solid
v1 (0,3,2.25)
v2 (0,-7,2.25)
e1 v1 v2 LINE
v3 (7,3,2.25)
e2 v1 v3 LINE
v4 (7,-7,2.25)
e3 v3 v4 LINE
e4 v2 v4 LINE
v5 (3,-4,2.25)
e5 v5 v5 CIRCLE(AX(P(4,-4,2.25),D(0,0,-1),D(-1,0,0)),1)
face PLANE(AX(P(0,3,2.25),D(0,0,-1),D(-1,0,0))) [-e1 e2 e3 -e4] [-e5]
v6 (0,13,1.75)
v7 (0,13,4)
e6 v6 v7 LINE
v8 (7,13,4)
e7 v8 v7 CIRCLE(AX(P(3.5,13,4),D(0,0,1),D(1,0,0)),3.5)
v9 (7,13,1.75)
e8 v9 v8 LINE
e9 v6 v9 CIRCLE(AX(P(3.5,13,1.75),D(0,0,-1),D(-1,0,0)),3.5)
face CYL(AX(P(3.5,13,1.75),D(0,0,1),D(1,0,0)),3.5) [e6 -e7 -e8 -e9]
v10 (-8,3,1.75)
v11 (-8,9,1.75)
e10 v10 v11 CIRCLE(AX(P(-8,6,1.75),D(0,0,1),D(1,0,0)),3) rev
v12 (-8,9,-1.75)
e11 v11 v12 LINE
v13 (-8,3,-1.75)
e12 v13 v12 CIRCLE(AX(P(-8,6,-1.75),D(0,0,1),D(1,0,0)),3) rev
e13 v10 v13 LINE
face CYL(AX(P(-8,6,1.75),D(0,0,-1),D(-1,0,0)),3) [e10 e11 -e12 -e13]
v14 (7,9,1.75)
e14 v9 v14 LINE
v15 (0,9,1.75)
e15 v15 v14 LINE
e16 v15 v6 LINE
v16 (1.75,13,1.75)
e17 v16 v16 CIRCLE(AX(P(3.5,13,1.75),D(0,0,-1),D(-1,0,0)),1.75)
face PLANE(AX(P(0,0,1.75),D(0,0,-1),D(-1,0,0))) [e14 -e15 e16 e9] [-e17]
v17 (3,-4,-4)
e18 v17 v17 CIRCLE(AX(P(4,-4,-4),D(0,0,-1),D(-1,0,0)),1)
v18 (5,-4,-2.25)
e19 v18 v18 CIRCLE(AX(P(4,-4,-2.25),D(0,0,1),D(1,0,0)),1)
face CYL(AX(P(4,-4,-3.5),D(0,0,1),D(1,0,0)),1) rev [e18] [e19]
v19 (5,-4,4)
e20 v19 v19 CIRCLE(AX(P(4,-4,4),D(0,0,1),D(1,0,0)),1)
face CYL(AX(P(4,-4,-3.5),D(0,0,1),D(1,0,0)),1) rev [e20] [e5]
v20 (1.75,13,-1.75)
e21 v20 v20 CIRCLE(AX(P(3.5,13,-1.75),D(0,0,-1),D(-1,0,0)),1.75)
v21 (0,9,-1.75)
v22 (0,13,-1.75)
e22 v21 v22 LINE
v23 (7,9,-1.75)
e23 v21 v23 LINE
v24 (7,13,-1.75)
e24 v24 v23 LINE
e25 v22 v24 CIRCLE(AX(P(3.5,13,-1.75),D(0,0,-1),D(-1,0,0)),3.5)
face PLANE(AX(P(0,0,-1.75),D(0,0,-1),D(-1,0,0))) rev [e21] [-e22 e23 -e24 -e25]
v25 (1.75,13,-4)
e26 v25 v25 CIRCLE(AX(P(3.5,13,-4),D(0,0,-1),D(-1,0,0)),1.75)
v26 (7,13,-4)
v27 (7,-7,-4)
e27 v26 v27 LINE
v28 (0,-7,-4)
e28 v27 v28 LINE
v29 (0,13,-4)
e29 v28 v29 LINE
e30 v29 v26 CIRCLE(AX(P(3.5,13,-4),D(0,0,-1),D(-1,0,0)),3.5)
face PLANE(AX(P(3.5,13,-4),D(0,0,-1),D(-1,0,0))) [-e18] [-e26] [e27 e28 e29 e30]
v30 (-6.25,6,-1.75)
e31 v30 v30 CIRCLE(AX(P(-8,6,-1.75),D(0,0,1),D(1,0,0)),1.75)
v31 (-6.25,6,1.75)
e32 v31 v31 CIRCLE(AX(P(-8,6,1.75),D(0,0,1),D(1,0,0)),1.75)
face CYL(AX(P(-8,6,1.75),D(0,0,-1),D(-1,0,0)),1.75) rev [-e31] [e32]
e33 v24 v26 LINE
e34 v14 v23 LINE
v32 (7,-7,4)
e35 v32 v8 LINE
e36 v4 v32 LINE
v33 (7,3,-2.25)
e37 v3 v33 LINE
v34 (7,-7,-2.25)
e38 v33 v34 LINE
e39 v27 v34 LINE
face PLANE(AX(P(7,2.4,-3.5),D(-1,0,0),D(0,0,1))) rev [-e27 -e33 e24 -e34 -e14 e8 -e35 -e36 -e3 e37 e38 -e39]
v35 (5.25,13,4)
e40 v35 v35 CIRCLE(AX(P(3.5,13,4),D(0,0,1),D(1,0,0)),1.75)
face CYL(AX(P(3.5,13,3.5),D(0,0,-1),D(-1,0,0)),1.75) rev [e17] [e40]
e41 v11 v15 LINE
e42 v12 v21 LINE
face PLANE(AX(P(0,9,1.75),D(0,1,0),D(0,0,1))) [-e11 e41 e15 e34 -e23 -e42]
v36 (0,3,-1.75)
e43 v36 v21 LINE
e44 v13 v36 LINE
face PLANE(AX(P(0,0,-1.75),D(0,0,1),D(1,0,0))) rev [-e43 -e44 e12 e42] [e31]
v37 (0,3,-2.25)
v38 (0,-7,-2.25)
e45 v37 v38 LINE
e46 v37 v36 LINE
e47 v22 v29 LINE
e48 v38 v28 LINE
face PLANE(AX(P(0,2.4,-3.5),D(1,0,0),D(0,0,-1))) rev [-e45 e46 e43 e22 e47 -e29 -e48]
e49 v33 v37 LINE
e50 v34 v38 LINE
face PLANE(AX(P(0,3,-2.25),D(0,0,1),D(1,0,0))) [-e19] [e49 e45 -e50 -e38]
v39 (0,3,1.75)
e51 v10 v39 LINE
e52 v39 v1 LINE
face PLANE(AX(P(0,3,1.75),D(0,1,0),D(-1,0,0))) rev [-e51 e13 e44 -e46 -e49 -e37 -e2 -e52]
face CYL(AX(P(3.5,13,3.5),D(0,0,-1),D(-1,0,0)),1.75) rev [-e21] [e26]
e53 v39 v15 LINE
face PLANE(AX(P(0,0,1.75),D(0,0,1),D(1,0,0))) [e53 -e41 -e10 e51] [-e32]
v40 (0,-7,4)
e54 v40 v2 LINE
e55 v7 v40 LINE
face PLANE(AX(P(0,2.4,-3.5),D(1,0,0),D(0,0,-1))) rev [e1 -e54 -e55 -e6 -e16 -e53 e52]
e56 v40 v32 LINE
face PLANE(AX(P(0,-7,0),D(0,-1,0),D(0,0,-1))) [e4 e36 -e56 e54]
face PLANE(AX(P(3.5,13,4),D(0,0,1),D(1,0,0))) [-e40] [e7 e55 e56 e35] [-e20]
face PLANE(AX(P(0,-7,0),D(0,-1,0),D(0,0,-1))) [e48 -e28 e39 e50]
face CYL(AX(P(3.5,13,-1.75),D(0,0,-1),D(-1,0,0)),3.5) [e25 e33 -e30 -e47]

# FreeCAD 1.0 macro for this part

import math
import FreeCAD as App
import Part
import Sketcher
from FreeCAD import Vector

doc = App.newDocument("Part")
body = doc.addObject("PartDesign::Body", "Body")

sketch1 = body.newObject("Sketcher::SketchObject", "Sketch")
sketch1.AttachmentSupport = (doc.getObject("XZ_Plane"), [""])
sketch1.MapMode = "FlatFace"
sketch1.addGeometry([
    Part.LineSegment(Vector(0, -3.5, 0), Vector(0, 3.5, 0)),
    Part.LineSegment(Vector(0, 3.5, 0), Vector(7, 3.5, 0)),
    Part.LineSegment(Vector(7, 3.5, 0), Vector(7, -3.5, 0)),
    Part.LineSegment(Vector(7, -3.5, 0), Vector(0, -3.5, 0)),
], False)
sketch1.addConstraint([
    Sketcher.Constraint("Coincident", 0, 2, 1, 1),
    Sketcher.Constraint("Coincident", 1, 2, 2, 1),
    Sketcher.Constraint("Coincident", 2, 2, 3, 1),
    Sketcher.Constraint("Coincident", 3, 2, 0, 1),
    Sketcher.Constraint("Vertical", 0),
    Sketcher.Constraint("Horizontal", 1),
    Sketcher.Constraint("Vertical", 2),
    Sketcher.Constraint("Horizontal", 3),
    Sketcher.Constraint("Symmetric", 0, 2, 3, 2, -1, 1),
    Sketcher.Constraint("Equal", 3, 0),
    Sketcher.Constraint("DistanceX", 1, 1, 1, 2, 7.0),
])
pad1 = body.newObject("PartDesign::Pad", "Pad")
pad1.Profile = sketch1
pad1.Length = 2.4
pad1.Reversed = True

sketch2 = body.newObject("Sketcher::SketchObject", "Sketch001")
sketch2.AttachmentSupport = (doc.getObject("XY_Plane"), [""])
sketch2.MapMode = "FlatFace"
sketch2.AttachmentOffset = App.Placement(Vector(0, 0, -3.5), App.Rotation())
sketch2.addGeometry([
    Part.LineSegment(Vector(0, 2.4, 0), Vector(0, 13, 0)),
    Part.ArcOfCircle(Part.Circle(Vector(3.5, 13, 0), Vector(0, 0, 1), 3.5), math.radians(0), math.radians(180)),
    Part.LineSegment(Vector(7, 13, 0), Vector(7, 2.4, 0)),
    Part.LineSegment(Vector(7, 2.4, 0), Vector(0, 2.4, 0)),
], False)
sketch2.addConstraint([
    Sketcher.Constraint("Tangent", 0, 2, 1, 2),
    Sketcher.Constraint("Tangent", 1, 1, 2, 1),
    Sketcher.Constraint("Coincident", 2, 2, 3, 1),
    Sketcher.Constraint("Coincident", 3, 2, 0, 1),
    Sketcher.Constraint("Vertical", 0),
    Sketcher.Constraint("Vertical", 2),
    Sketcher.Constraint("Horizontal", 3),
    Sketcher.Constraint("PointOnObject", 0, 2, -2),
    Sketcher.Constraint("Radius", 1, 3.5),
    Sketcher.Constraint("DistanceY", 0, 1, 0, 2, 10.6),
    Sketcher.Constraint("DistanceY", -1, 1, 1, 3, 13.0),
])
pad2 = body.newObject("PartDesign::Pad", "Pad001")
pad2.Profile = sketch2
pad2.Length = 1.75

sketch3 = body.newObject("Sketcher::SketchObject", "Sketch002")
sketch3.AttachmentSupport = (doc.getObject("XY_Plane"), [""])
sketch3.MapMode = "FlatFace"
sketch3.AttachmentOffset = App.Placement(Vector(0, 0, 1.75), App.Rotation())
sketch3.addGeometry([
    Part.LineSegment(Vector(0, 2.4, 0), Vector(0, 13, 0)),
    Part.ArcOfCircle(Part.Circle(Vector(3.5, 13, 0), Vector(0, 0, 1), 3.5), math.radians(0), math.radians(180)),
    Part.LineSegment(Vector(7, 13, 0), Vector(7, 2.4, 0)),
    Part.LineSegment(Vector(7, 2.4, 0), Vector(0, 2.4, 0)),
], False)
sketch3.addConstraint([
    Sketcher.Constraint("Tangent", 0, 2, 1, 2),
    Sketcher.Constraint("Tangent", 1, 1, 2, 1),
    Sketcher.Constraint("Coincident", 2, 2, 3, 1),
    Sketcher.Constraint("Coincident", 3, 2, 0, 1),
    Sketcher.Constraint("Vertical", 0),
    Sketcher.Constraint("Vertical", 2),
    Sketcher.Constraint("Horizontal", 3),
    Sketcher.Constraint("PointOnObject", 0, 2, -2),
    Sketcher.Constraint("Radius", 1, 3.5),
    Sketcher.Constraint("DistanceY", 0, 1, 0, 2, 10.6),
    Sketcher.Constraint("DistanceY", -1, 1, 1, 3, 13.0),
])
pad3 = body.newObject("PartDesign::Pad", "Pad002")
pad3.Profile = sketch3
pad3.Length = 1.75

sketch4 = body.newObject("Sketcher::SketchObject", "Sketch003")
sketch4.AttachmentSupport = (doc.getObject("XY_Plane"), [""])
sketch4.MapMode = "FlatFace"
sketch4.AttachmentOffset = App.Placement(Vector(0, 0, -3.5), App.Rotation())
sketch4.addGeometry(Part.Circle(Vector(3.5, 13, 0), Vector(0, 0, 1), 1.75), False)
sketch4.addConstraint([
    Sketcher.Constraint("Diameter", 0, 3.5),
    Sketcher.Constraint("DistanceY", -1, 1, 0, 3, 13.0),
    Sketcher.Constraint("DistanceX", -1, 1, 0, 3, 3.5),
])
pocket1 = body.newObject("PartDesign::Pocket", "Pocket")
pocket1.Profile = sketch4
pocket1.Type = "ThroughAll"
pocket1.Reversed = True

sketch5 = body.newObject("Sketcher::SketchObject", "Sketch004")
sketch5.AttachmentSupport = (doc.getObject("XZ_Plane"), [""])
sketch5.MapMode = "FlatFace"
sketch5.addGeometry([
    Part.LineSegment(Vector(0, 3.5, 0), Vector(0, -3.5, 0)),
    Part.LineSegment(Vector(0, -3.5, 0), Vector(7, -3.5, 0)),
    Part.LineSegment(Vector(7, -3.5, 0), Vector(7, 3.5, 0)),
    Part.LineSegment(Vector(7, 3.5, 0), Vector(0, 3.5, 0)),
], False)
sketch5.addConstraint([
    Sketcher.Constraint("Coincident", 0, 2, 1, 1),
    Sketcher.Constraint("Coincident", 1, 2, 2, 1),
    Sketcher.Constraint("Coincident", 2, 2, 3, 1),
    Sketcher.Constraint("Coincident", 3, 2, 0, 1),
    Sketcher.Constraint("Vertical", 0),
    Sketcher.Constraint("Horizontal", 1),
    Sketcher.Constraint("Vertical", 2),
    Sketcher.Constraint("Horizontal", 3),
    Sketcher.Constraint("Symmetric", 0, 2, 3, 2, -1, 1),
    Sketcher.Constraint("Equal", 3, 0),
    Sketcher.Constraint("DistanceX", 1, 1, 1, 2, 7.0),
])
pad4 = body.newObject("PartDesign::Pad", "Pad003")
pad4.Profile = sketch5
pad4.Length = 7

sketch6 = body.newObject("Sketcher::SketchObject", "Sketch005")
sketch6.AttachmentSupport = (doc.getObject("XY_Plane"), [""])
sketch6.MapMode = "FlatFace"
sketch6.addGeometry([
    Part.ArcOfCircle(Part.Circle(Vector(-8, 6, 0), Vector(0, 0, 1), 3), math.radians(90), math.radians(270)),
    Part.LineSegment(Vector(-8, 3, 0), Vector(7, 3, 0)),
    Part.LineSegment(Vector(7, 3, 0), Vector(7, 9, 0)),
    Part.LineSegment(Vector(7, 9, 0), Vector(-8, 9, 0)),
    Part.Circle(Vector(-8, 6, 0), Vector(0, 0, 1), 1.75),
], False)
sketch6.addConstraint([
    Sketcher.Constraint("Tangent", 0, 2, 1, 1),
    Sketcher.Constraint("Coincident", 1, 2, 2, 1),
    Sketcher.Constraint("Coincident", 2, 2, 3, 1),
    Sketcher.Constraint("Tangent", 3, 2, 0, 1),
    Sketcher.Constraint("Horizontal", 1),
    Sketcher.Constraint("Vertical", 2),
    Sketcher.Constraint("Horizontal", 3),
    Sketcher.Constraint("Coincident", 4, 3, 0, 3),
    Sketcher.Constraint("Radius", 0, 3.0),
    Sketcher.Constraint("Diameter", 4, 3.5),
    Sketcher.Constraint("DistanceX", 1, 1, 1, 2, 15.0),
    Sketcher.Constraint("DistanceX", 0, 3, -1, 1, 8.0),
    Sketcher.Constraint("DistanceY", -1, 1, 0, 3, 6.0),
])
pad5 = body.newObject("PartDesign::Pad", "Pad004")
pad5.Profile = sketch6
pad5.Length = 3.5
pad5.Midplane = True

sketch7 = body.newObject("Sketcher::SketchObject", "Sketch006")
sketch7.AttachmentSupport = (doc.getObject("XY_Plane"), [""])
sketch7.MapMode = "FlatFace"
sketch7.AttachmentOffset = App.Placement(Vector(0, 0, 3.5), App.Rotation())
sketch7.addGeometry(Part.Circle(Vector(4, -4, 0), Vector(0, 0, 1), 1), False)
sketch7.addConstraint([
    Sketcher.Constraint("Diameter", 0, 2.0),
    Sketcher.Constraint("DistanceX", -1, 1, 0, 3, 4.0),
    Sketcher.Constraint("DistanceY", 0, 3, -1, 1, 4.0),
])
pocket2 = body.newObject("PartDesign::Pocket", "Pocket001")
pocket2.Profile = sketch7
pocket2.Type = "ThroughAll"

sketch8 = body.newObject("Sketcher::SketchObject", "Sketch007")
sketch8.AttachmentSupport = (doc.getObject("XZ_Plane"), [""])
sketch8.MapMode = "FlatFace"
sketch8.AttachmentOffset = App.Placement(Vector(0, 0, 7), App.Rotation())
sketch8.addGeometry([
    Part.LineSegment(Vector(0, -2.25, 0), Vector(0, 2.25, 0)),
    Part.LineSegment(Vector(0, 2.25, 0), Vector(7, 2.25, 0)),
    Part.LineSegment(Vector(7, 2.25, 0), Vector(7, -2.25, 0)),
    Part.LineSegment(Vector(7, -2.25, 0), Vector(0, -2.25, 0)),
], False)
sketch8.addConstraint([
    Sketcher.Constraint("Coincident", 0, 2, 1, 1),
    Sketcher.Constraint("Coincident", 1, 2, 2, 1),
    Sketcher.Constraint("Coincident", 2, 2, 3, 1),
    Sketcher.Constraint("Coincident", 3, 2, 0, 1),
    Sketcher.Constraint("Vertical", 0),
    Sketcher.Constraint("Horizontal", 1),
    Sketcher.Constraint("Vertical", 2),
    Sketcher.Constraint("Horizontal", 3),
    Sketcher.Constraint("Symmetric", 0, 2, 3, 2, -1, 1),
    Sketcher.Constraint("DistanceX", 1, 1, 1, 2, 7.0),
    Sketcher.Constraint("DistanceY", 0, 1, 0, 2, 4.5),
])
pocket3 = body.newObject("PartDesign::Pocket", "Pocket002")
pocket3.Profile = sketch8
pocket3.Length = 10

sketch9 = body.newObject("Sketcher::SketchObject", "Sketch008")
sketch9.AttachmentSupport = (doc.getObject("XY_Plane"), [""])
sketch9.MapMode = "FlatFace"
sketch9.AttachmentOffset = App.Placement(Vector(0, 0, 3.5), App.Rotation())
sketch9.addGeometry([
    Part.LineSegment(Vector(0, 13, 0), Vector(0, -7, 0)),
    Part.LineSegment(Vector(0, -7, 0), Vector(7, -7, 0)),
    Part.LineSegment(Vector(7, -7, 0), Vector(7, 13, 0)),
    Part.ArcOfCircle(Part.Circle(Vector(3.5, 13, 0), Vector(0, 0, 1), 3.5), math.radians(0), math.radians(180)),
    Part.Circle(Vector(4, -4, 0), Vector(0, 0, 1), 1),
    Part.Circle(Vector(3.5, 13, 0), Vector(0, 0, 1), 1.75),
], False)
sketch9.addConstraint([
    Sketcher.Constraint("Coincident", 0, 2, 1, 1),
    Sketcher.Constraint("Coincident", 1, 2, 2, 1),
    Sketcher.Constraint("Tangent", 2, 2, 3, 1),
    Sketcher.Constraint("Tangent", 3, 2, 0, 1),
    Sketcher.Constraint("Vertical", 0),
    Sketcher.Constraint("Horizontal", 1),
    Sketcher.Constraint("Vertical", 2),
    Sketcher.Constraint("Coincident", 5, 3, 3, 3),
    Sketcher.Constraint("PointOnObject", 0, 2, -2),
    Sketcher.Constraint("Diameter", 4, 2.0),
    Sketcher.Constraint("Diameter", 5, 3.5),
    Sketcher.Constraint("Radius", 3, 3.5),
    Sketcher.Constraint("DistanceY", 0, 2, 0, 1, 20.0),
    Sketcher.Constraint("DistanceY", -1, 1, 3, 3, 13.0),
    Sketcher.Constraint("DistanceX", -1, 1, 4, 3, 4.0),
    Sketcher.Constraint("DistanceY", 4, 3, -1, 1, 4.0),
])
pad6 = body.newObject("PartDesign::Pad", "Pad005")
pad6.Profile = sketch9
pad6.Length = 0.5

sketch10 = body.newObject("Sketcher::SketchObject", "Sketch009")
sketch10.AttachmentSupport = (doc.getObject("XY_Plane"), [""])
sketch10.MapMode = "FlatFace"
sketch10.AttachmentOffset = App.Placement(Vector(0, 0, -4), App.Rotation())
sketch10.addGeometry([
    Part.LineSegment(Vector(7, 13, 0), Vector(7, -7, 0)),
    Part.LineSegment(Vector(7, -7, 0), Vector(0, -7, 0)),
    Part.LineSegment(Vector(0, -7, 0), Vector(0, 13, 0)),
    Part.ArcOfCircle(Part.Circle(Vector(3.5, 13, 0), Vector(0, 0, 1), 3.5), math.radians(0), math.radians(180)),
    Part.Circle(Vector(4, -4, 0), Vector(0, 0, 1), 1),
    Part.Circle(Vector(3.5, 13, 0), Vector(0, 0, 1), 1.75),
], False)
sketch10.addConstraint([
    Sketcher.Constraint("Coincident", 0, 2, 1, 1),
    Sketcher.Constraint("Coincident", 1, 2, 2, 1),
    Sketcher.Constraint("Tangent", 2, 2, 3, 2),
    Sketcher.Constraint("Tangent", 3, 1, 0, 1),
    Sketcher.Constraint("Vertical", 0),
    Sketcher.Constraint("Horizontal", 1),
    Sketcher.Constraint("Vertical", 2),
    Sketcher.Constraint("Coincident", 5, 3, 3, 3),
    Sketcher.Constraint("PointOnObject", 1, 2, -2),
    Sketcher.Constraint("Diameter", 4, 2.0),
    Sketcher.Constraint("Diameter", 5, 3.5),
    Sketcher.Constraint("Radius", 3, 3.5),
    Sketcher.Constraint("DistanceY", 0, 2, 0, 1, 20.0),
    Sketcher.Constraint("DistanceY", -1, 1, 3, 3, 13.0),
    Sketcher.Constraint("DistanceX", -1, 1, 4, 3, 4.0),
    Sketcher.Constraint("DistanceY", 4, 3, -1, 1, 4.0),
])
pad7 = body.newObject("PartDesign::Pad", "Pad006")
pad7.Profile = sketch10
pad7.Length = 0.5

doc.recompute()
